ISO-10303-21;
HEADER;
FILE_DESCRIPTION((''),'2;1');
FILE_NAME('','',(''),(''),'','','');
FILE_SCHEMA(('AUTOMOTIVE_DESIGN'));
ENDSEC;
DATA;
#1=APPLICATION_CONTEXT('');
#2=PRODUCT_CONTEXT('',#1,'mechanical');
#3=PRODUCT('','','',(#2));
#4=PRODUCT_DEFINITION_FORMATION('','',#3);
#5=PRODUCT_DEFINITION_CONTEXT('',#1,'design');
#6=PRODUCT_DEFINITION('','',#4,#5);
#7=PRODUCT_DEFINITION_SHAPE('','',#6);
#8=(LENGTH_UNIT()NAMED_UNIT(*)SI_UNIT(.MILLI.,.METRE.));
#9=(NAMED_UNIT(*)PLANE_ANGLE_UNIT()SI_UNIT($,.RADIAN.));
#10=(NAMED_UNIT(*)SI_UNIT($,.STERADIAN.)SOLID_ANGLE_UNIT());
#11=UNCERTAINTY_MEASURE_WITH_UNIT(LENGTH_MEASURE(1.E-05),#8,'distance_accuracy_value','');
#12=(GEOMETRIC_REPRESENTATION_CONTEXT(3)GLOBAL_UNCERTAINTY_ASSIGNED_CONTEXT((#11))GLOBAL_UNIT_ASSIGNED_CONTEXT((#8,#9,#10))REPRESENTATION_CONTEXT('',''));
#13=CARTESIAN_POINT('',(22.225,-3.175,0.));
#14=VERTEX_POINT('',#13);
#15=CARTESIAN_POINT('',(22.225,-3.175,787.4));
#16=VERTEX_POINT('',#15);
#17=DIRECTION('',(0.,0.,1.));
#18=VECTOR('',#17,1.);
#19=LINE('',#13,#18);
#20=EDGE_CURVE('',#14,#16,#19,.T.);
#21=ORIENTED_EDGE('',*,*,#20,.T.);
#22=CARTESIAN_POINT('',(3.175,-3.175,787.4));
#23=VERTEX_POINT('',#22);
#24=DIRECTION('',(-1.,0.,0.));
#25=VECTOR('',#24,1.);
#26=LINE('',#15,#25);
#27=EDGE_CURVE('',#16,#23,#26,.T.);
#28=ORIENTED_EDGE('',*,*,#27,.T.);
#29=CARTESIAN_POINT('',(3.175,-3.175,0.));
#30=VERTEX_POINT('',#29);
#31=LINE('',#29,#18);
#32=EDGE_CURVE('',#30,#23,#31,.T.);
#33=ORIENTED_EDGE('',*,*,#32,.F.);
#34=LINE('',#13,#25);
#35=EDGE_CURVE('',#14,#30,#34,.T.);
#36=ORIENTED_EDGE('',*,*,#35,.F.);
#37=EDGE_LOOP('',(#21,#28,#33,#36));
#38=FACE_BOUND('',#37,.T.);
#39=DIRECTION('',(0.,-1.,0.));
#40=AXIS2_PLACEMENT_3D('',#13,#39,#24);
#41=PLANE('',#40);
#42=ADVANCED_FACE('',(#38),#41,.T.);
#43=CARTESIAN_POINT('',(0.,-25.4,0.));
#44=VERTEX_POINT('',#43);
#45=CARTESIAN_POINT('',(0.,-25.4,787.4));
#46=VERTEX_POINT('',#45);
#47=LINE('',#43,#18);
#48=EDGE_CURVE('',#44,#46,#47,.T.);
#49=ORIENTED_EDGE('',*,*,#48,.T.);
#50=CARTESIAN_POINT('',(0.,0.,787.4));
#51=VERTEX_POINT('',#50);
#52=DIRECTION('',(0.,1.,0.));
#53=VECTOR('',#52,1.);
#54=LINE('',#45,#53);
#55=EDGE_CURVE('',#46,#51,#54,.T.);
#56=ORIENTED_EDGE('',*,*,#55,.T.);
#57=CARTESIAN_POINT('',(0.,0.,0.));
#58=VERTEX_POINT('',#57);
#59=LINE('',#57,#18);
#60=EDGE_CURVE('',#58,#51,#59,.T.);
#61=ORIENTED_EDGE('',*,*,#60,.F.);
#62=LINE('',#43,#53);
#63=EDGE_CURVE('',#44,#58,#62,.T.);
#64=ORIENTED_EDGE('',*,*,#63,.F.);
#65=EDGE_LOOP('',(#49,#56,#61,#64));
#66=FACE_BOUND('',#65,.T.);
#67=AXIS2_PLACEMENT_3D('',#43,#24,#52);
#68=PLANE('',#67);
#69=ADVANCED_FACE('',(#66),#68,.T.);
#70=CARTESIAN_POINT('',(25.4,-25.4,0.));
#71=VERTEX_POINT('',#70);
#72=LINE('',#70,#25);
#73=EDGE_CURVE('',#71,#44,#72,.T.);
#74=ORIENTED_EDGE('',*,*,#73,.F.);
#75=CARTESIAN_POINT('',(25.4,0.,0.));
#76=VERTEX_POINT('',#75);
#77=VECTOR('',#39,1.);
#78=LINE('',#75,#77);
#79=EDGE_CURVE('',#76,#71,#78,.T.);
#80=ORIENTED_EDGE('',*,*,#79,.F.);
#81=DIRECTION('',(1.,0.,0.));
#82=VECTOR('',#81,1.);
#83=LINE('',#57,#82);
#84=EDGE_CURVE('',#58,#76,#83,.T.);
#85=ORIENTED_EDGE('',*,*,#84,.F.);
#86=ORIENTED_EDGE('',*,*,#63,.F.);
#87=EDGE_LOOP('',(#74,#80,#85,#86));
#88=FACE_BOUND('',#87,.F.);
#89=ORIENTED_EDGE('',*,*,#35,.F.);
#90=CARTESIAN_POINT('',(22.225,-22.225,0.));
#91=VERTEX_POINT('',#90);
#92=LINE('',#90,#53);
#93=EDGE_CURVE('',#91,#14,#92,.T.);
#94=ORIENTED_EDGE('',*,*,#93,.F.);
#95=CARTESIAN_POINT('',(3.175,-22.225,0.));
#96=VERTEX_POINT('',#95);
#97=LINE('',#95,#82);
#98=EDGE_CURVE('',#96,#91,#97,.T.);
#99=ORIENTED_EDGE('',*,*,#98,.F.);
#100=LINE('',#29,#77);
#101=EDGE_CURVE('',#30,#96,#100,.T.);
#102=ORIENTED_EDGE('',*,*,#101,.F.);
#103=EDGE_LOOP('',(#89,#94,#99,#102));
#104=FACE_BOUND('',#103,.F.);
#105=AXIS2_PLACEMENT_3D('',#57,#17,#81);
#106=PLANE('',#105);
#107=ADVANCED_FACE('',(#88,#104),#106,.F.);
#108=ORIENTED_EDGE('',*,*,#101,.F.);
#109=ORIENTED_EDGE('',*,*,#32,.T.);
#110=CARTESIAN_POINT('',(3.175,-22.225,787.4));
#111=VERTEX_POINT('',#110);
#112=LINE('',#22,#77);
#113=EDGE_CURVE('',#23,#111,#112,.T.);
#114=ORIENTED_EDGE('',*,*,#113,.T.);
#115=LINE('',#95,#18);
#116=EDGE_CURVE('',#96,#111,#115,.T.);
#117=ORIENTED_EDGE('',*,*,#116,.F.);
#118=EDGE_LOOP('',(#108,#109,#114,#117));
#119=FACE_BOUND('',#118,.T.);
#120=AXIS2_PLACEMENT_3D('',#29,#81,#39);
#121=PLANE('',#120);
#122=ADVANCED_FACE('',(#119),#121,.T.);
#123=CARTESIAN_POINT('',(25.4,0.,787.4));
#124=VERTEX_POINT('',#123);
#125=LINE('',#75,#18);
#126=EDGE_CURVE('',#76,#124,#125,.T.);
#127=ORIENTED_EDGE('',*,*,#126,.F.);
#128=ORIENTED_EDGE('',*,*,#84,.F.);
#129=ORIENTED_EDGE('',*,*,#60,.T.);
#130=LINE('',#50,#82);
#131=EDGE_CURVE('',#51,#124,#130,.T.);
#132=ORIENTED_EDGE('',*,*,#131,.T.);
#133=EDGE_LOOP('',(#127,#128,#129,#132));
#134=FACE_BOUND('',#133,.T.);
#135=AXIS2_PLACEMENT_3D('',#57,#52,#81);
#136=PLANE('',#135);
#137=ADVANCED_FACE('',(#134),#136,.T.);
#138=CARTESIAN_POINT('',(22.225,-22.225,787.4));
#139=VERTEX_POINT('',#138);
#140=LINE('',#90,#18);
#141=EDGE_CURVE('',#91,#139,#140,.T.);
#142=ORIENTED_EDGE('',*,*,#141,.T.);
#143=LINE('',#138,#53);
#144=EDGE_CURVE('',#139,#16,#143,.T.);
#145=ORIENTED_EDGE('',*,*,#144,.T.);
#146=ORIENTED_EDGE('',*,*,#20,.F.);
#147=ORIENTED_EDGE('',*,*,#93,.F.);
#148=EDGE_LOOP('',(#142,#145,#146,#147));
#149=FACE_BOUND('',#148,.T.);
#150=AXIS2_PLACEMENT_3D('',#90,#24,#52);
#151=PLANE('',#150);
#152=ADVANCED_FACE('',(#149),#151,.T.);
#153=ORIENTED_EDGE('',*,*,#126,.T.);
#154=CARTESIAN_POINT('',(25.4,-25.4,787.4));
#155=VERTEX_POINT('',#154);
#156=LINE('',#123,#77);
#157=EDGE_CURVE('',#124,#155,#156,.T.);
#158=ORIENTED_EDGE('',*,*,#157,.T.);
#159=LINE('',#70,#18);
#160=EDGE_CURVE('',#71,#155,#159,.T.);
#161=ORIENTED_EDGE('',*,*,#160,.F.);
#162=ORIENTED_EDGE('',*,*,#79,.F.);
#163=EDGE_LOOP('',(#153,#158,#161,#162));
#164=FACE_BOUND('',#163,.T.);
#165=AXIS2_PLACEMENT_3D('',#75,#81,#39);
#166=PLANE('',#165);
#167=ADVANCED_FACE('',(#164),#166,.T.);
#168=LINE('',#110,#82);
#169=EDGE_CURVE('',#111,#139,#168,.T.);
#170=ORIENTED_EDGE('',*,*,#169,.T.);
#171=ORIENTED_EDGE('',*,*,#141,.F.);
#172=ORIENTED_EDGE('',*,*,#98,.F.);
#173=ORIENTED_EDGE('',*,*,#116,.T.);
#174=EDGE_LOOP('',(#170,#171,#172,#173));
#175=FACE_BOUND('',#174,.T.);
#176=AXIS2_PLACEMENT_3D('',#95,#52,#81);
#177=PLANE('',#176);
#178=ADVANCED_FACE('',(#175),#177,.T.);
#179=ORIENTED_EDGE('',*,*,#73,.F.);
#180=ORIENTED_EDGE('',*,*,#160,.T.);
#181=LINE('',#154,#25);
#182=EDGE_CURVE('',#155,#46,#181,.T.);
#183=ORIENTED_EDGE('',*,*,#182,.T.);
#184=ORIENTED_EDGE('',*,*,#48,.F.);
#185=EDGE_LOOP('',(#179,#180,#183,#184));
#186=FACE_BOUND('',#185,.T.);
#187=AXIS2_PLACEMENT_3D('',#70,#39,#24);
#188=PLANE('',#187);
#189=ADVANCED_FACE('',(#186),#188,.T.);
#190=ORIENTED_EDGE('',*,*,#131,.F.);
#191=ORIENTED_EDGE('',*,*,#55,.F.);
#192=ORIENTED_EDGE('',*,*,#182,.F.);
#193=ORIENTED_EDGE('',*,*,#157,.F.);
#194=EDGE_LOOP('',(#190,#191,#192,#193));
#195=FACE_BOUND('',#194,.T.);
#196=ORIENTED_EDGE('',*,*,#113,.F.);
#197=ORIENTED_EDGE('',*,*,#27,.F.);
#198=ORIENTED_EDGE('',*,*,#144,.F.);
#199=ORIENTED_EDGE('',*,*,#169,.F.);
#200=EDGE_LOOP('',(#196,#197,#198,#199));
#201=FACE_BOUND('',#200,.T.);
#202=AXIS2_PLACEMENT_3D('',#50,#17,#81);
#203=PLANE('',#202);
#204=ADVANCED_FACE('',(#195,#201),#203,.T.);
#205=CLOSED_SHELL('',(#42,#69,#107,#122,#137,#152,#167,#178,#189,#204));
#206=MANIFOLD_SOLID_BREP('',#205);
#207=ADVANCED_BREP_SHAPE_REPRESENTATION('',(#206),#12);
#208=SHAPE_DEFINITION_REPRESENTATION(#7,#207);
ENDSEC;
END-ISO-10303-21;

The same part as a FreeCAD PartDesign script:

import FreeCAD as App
import Part
import Sketcher
from FreeCAD import Vector
Q = App.Units.Quantity

doc = App.newDocument("Part")
body = doc.addObject("PartDesign::Body", "Body")

# Sketch on XY plane
sketch1 = doc.addObject("Sketcher::SketchObject", "Sketch")
body.addObject(sketch1)
sketch1.AttachmentSupport = (doc.XY_Plane, [""])
sketch1.MapMode = "FlatFace"
sketch1.addGeometry([
    Part.LineSegment(Vector(25.4, 0, 0), Vector(0, 0, 0)),  # 0
    Part.LineSegment(Vector(0, 0, 0), Vector(0, -25.4, 0)),  # 1
    Part.LineSegment(Vector(0, -25.4, 0), Vector(25.4, -25.4, 0)),  # 2
    Part.LineSegment(Vector(25.4, -25.4, 0), Vector(25.4, 0, 0)),  # 3
    Part.LineSegment(Vector(3.175, -3.175, 0), Vector(22.225, -3.175, 0)),  # 4
    Part.LineSegment(Vector(22.225, -3.175, 0), Vector(22.225, -22.225, 0)),  # 5
    Part.LineSegment(Vector(22.225, -22.225, 0), Vector(3.175, -22.225, 0)),  # 6
    Part.LineSegment(Vector(3.175, -22.225, 0), Vector(3.175, -3.175, 0)),  # 7
], False)
sketch1.addConstraint([
    Sketcher.Constraint("Coincident", 0, 2, 1, 1),
    Sketcher.Constraint("Coincident", 1, 2, 2, 1),
    Sketcher.Constraint("Coincident", 2, 2, 3, 1),
    Sketcher.Constraint("Coincident", 3, 2, 0, 1),
    Sketcher.Constraint("Coincident", 4, 2, 5, 1),
    Sketcher.Constraint("Coincident", 5, 2, 6, 1),
    Sketcher.Constraint("Coincident", 6, 2, 7, 1),
    Sketcher.Constraint("Coincident", 7, 2, 4, 1),
    Sketcher.Constraint("Horizontal", 0),
    Sketcher.Constraint("Vertical", 1),
    Sketcher.Constraint("Horizontal", 2),
    Sketcher.Constraint("Vertical", 3),
    Sketcher.Constraint("Horizontal", 4),
    Sketcher.Constraint("Vertical", 5),
    Sketcher.Constraint("Horizontal", 6),
    Sketcher.Constraint("Vertical", 7),
    Sketcher.Constraint("Coincident", 0, 2, -1, 1),
    Sketcher.Constraint("Equal", 2, 1),
    Sketcher.Constraint("Equal", 6, 5),
    Sketcher.Constraint("DistanceX", 0, 2, 0, 1, Q("1 in")),
    Sketcher.Constraint("DistanceY", 4, 2, -1, 1, Q("0.125 in")),
    Sketcher.Constraint("DistanceX", -1, 1, 6, 2, Q("0.125 in")),
    Sketcher.Constraint("DistanceX", 4, 2, 3, 2, Q("0.125 in")),
])
pad1 = doc.addObject("PartDesign::Pad", "Pad")
body.addObject(pad1)
pad1.Profile = sketch1
pad1.Length = Q("31 in")

doc.recompute()
